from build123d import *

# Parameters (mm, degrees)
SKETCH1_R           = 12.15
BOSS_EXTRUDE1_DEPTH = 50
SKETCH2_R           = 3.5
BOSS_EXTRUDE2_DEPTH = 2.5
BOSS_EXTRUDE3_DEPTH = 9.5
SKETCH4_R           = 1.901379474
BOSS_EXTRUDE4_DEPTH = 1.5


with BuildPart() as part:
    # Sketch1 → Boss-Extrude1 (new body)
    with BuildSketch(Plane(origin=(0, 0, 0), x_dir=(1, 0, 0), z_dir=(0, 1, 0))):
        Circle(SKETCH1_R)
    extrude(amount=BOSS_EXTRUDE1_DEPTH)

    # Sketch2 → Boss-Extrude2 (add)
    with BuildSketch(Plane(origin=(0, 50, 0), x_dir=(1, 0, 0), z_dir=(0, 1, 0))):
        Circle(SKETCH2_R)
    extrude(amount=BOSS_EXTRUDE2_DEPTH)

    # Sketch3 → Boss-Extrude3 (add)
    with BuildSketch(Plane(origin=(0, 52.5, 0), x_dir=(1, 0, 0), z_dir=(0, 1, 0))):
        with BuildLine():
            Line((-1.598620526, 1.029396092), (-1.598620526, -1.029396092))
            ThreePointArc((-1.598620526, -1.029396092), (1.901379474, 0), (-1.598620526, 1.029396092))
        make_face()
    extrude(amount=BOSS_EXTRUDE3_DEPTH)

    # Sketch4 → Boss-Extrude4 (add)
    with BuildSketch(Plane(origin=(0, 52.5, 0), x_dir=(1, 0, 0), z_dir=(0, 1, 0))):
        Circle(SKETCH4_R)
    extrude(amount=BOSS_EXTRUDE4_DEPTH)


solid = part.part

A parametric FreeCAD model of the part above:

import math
import FreeCAD as App
import Part
import Sketcher
Q = App.Units.Quantity

doc = App.newDocument("Part")
body = doc.addObject("PartDesign::Body", "Body")

# Sketch on XZ plane
sketch1 = body.newObject("Sketcher::SketchObject", "Sketch")
sketch1.AttachmentSupport = (doc.getObject("XZ_Plane"), [""])
sketch1.MapMode = "FlatFace"
sketch1.addGeometry(Part.Circle(App.Vector(0, 0, 0), App.Vector(0, 0, 1), 12), False)
sketch1.addConstraint([
    Sketcher.Constraint("Coincident", 0, 3, -1, 1),
    Sketcher.Constraint("Diameter", 0, Q("24.3 mm")),
])
pad1 = body.newObject("PartDesign::Pad", "Pad")
pad1.Profile = sketch1
pad1.Length = 50
pad1.Reversed = True

# Sketch on XZ plane
sketch2 = body.newObject("Sketcher::SketchObject", "Sketch001")
sketch2.AttachmentSupport = (doc.getObject("XZ_Plane"), [""])
sketch2.MapMode = "FlatFace"
sketch2.AttachmentOffset = App.Placement(App.Vector(0, 0, -50), App.Rotation())
sketch2.addGeometry(Part.Circle(App.Vector(0, 0, 0), App.Vector(0, 0, 1), 3.5), False)
sketch2.addConstraint([
    Sketcher.Constraint("Coincident", 0, 3, -1, 1),
    Sketcher.Constraint("Diameter", 0, Q("7 mm")),
])
pad2 = body.newObject("PartDesign::Pad", "Pad001")
pad2.Profile = sketch2
pad2.Length = 2.5
pad2.Reversed = True

# Sketch on XZ plane
sketch3 = body.newObject("Sketcher::SketchObject", "Sketch002")
sketch3.AttachmentSupport = (doc.getObject("XZ_Plane"), [""])
sketch3.MapMode = "FlatFace"
sketch3.AttachmentOffset = App.Placement(App.Vector(0, 0, -52.5), App.Rotation())
sketch3.addGeometry([
    Part.LineSegment(App.Vector(-1.6, -1, 0), App.Vector(-1.6, 1, 0)),
    Part.ArcOfCircle(Part.Circle(App.Vector(0, 0, 0), App.Vector(0, 0, 1), 1.9), math.radians(-147), math.radians(147)),
], False)
sketch3.addConstraint([
    Sketcher.Constraint("Coincident", 0, 1, 1, 1),
    Sketcher.Constraint("Coincident", 1, 2, 0, 2),
    Sketcher.Constraint("Vertical", 0),
    Sketcher.Constraint("Coincident", 1, 3, -1, 1),
    Sketcher.Constraint("Radius", 1, Q("1.901379 mm")),
    Sketcher.Constraint("DistanceY", 0, 1, 0, 2, Q("2.058792 mm")),
])
pad3 = body.newObject("PartDesign::Pad", "Pad002")
pad3.Profile = sketch3
pad3.Length = 9.5
pad3.Reversed = True

# Sketch on XZ plane
sketch4 = body.newObject("Sketcher::SketchObject", "Sketch003")
sketch4.AttachmentSupport = (doc.getObject("XZ_Plane"), [""])
sketch4.MapMode = "FlatFace"
sketch4.AttachmentOffset = App.Placement(App.Vector(0, 0, -52.5), App.Rotation())
sketch4.addGeometry(Part.Circle(App.Vector(0, 0, 0), App.Vector(0, 0, 1), 1.9), False)
sketch4.addConstraint([
    Sketcher.Constraint("Coincident", 0, 3, -1, 1),
    Sketcher.Constraint("Diameter", 0, Q("3.802759 mm")),
])
pad4 = body.newObject("PartDesign::Pad", "Pad003")
pad4.Profile = sketch4
pad4.Length = 1.5
pad4.Reversed = True

doc.recompute()
